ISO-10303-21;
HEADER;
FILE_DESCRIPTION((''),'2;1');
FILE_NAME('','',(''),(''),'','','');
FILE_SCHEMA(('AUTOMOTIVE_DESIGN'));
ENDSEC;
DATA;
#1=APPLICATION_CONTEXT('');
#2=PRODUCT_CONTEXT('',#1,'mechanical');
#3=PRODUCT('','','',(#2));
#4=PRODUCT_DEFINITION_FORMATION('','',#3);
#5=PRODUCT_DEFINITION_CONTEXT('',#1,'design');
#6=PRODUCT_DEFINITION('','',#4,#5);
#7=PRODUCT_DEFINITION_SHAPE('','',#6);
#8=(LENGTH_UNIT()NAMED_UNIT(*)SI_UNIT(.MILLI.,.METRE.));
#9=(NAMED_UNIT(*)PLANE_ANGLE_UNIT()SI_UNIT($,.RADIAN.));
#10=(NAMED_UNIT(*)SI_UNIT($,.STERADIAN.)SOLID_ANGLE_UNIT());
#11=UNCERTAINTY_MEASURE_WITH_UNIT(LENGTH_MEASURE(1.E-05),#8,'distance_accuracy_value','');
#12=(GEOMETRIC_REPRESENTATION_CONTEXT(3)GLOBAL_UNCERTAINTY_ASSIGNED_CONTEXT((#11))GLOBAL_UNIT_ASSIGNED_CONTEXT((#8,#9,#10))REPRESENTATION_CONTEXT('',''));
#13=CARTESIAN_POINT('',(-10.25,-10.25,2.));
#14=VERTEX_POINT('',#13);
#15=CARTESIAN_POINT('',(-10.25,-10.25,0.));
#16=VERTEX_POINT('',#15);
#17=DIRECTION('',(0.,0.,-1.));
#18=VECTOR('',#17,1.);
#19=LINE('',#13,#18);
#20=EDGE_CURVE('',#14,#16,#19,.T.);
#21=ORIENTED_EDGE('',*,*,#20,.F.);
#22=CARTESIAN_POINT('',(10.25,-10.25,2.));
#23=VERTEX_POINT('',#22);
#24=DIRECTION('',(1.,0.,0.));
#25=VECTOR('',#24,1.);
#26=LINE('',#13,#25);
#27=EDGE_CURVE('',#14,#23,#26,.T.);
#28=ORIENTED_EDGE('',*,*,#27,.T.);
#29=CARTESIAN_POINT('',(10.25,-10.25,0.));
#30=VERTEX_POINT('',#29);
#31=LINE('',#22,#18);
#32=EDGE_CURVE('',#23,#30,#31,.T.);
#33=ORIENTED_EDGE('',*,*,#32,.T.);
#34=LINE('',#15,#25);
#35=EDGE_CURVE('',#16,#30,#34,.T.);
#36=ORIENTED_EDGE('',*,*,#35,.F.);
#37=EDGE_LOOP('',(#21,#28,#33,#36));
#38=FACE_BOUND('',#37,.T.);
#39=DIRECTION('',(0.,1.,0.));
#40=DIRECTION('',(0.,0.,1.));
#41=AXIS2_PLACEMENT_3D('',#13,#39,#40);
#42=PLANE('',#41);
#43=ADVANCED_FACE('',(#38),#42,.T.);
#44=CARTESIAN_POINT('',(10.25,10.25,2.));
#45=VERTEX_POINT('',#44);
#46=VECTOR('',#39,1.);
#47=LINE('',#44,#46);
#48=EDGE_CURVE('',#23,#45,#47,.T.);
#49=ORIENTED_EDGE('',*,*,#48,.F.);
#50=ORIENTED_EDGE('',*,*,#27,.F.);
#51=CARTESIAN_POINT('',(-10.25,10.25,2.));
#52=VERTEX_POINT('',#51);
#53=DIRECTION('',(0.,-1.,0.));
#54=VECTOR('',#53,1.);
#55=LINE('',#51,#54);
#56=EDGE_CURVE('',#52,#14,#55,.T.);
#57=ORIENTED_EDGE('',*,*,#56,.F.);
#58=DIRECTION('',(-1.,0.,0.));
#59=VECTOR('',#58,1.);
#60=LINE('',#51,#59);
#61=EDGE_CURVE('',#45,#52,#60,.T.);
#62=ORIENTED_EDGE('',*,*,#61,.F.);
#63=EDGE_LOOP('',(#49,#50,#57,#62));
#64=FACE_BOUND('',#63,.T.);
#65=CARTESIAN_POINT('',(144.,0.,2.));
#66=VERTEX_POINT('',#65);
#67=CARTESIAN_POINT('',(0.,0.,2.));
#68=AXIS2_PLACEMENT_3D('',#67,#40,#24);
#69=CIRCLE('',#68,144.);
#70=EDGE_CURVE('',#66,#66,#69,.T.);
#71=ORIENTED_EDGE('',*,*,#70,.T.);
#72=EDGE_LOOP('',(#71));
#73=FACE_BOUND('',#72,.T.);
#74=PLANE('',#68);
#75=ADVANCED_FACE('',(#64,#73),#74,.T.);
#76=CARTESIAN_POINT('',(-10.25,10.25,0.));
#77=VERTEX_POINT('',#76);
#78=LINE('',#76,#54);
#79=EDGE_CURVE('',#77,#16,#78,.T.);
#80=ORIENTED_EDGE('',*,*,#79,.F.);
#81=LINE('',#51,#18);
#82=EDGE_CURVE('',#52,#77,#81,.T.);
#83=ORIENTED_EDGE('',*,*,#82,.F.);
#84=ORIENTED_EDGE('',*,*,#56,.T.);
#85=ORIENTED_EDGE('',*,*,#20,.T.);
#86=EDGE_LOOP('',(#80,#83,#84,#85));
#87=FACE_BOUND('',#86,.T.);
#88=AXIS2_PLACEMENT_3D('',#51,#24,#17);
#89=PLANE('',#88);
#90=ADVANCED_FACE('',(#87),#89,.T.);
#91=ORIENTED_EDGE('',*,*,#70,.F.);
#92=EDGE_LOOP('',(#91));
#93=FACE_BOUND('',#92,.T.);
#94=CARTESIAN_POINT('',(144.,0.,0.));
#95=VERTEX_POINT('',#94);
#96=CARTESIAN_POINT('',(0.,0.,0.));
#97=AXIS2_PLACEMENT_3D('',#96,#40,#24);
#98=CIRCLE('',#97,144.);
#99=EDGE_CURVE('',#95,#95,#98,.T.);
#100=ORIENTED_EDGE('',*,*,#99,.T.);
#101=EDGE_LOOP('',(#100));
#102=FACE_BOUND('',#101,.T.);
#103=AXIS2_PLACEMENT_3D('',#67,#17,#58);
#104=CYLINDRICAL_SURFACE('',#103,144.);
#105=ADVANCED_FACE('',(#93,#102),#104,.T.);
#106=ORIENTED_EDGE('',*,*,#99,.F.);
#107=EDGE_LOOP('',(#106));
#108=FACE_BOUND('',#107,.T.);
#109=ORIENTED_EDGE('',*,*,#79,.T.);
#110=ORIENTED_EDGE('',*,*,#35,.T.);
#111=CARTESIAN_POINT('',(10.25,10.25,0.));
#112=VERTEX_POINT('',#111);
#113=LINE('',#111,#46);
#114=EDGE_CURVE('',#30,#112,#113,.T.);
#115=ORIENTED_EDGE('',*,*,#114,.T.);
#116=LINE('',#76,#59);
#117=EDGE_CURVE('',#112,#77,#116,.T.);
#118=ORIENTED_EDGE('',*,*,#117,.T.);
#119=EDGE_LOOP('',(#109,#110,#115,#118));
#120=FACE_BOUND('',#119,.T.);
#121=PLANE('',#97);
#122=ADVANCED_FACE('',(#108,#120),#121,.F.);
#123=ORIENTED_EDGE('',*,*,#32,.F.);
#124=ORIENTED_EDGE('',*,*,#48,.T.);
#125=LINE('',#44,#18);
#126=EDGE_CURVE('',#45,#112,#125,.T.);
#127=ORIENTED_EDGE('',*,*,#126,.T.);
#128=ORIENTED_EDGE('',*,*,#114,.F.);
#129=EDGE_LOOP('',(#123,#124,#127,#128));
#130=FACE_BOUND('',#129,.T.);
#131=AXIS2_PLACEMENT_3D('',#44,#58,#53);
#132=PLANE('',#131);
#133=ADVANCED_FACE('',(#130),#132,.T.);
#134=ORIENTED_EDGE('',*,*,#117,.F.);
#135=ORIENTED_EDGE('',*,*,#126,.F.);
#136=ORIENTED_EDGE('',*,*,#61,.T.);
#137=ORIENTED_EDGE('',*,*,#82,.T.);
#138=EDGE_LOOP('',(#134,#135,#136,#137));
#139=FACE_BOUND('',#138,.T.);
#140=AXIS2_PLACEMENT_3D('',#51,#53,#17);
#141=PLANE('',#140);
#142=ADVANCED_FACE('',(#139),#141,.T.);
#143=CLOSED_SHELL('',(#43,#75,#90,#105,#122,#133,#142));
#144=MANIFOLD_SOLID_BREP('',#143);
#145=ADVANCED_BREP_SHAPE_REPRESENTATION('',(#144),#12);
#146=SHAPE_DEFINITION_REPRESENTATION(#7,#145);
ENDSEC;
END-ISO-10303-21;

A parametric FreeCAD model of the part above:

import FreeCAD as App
import Part
import Sketcher
from FreeCAD import Vector


def add_polygon(sketch, points):
    """Adds a closed chain of lines whose ends are joined by coincident constraints."""
    first, n = sketch.GeometryCount, len(points)
    for a, b in zip(points, points[1:] + points[:1]):
        sketch.addGeometry(Part.LineSegment(App.Vector(*a, 0), App.Vector(*b, 0)), False)
    for i in range(n):
        sketch.addConstraint(Sketcher.Constraint("Coincident", first + i, 2, first + (i + 1) % n, 1))

doc = App.newDocument("Part")
body = doc.addObject("PartDesign::Body", "Body")

# Sketch on XY plane
sketch1 = body.newObject("Sketcher::SketchObject", "Sketch")
sketch1.AttachmentSupport = (doc.getObject("XY_Plane"), [""])
sketch1.MapMode = "FlatFace"
sketch1.addGeometry(Part.Circle(Vector(0, 0, 0), Vector(0, 0, 1), 144), False)  # 0
add_polygon(sketch1, [(10.25, -10.25), (-10.25, -10.25), (-10.25, 10.25), (10.25, 10.25)])  # lines 1-4
sketch1.addConstraint([
    Sketcher.Constraint("Horizontal", 1),
    Sketcher.Constraint("Vertical", 2),
    Sketcher.Constraint("Horizontal", 3),
    Sketcher.Constraint("Vertical", 4),
    Sketcher.Constraint("Coincident", 0, 3, -1, 1),
    Sketcher.Constraint("Symmetric", 1, 2, 3, 2, -1, 1),
    Sketcher.Constraint("Equal", 3, 2),
    Sketcher.Constraint("Diameter", 0, 288.0),
    Sketcher.Constraint("DistanceX", 1, 2, 1, 1, 20.5),
])
pad1 = body.newObject("PartDesign::Pad", "Pad")
pad1.Profile = sketch1
pad1.Length = 2

doc.recompute()
